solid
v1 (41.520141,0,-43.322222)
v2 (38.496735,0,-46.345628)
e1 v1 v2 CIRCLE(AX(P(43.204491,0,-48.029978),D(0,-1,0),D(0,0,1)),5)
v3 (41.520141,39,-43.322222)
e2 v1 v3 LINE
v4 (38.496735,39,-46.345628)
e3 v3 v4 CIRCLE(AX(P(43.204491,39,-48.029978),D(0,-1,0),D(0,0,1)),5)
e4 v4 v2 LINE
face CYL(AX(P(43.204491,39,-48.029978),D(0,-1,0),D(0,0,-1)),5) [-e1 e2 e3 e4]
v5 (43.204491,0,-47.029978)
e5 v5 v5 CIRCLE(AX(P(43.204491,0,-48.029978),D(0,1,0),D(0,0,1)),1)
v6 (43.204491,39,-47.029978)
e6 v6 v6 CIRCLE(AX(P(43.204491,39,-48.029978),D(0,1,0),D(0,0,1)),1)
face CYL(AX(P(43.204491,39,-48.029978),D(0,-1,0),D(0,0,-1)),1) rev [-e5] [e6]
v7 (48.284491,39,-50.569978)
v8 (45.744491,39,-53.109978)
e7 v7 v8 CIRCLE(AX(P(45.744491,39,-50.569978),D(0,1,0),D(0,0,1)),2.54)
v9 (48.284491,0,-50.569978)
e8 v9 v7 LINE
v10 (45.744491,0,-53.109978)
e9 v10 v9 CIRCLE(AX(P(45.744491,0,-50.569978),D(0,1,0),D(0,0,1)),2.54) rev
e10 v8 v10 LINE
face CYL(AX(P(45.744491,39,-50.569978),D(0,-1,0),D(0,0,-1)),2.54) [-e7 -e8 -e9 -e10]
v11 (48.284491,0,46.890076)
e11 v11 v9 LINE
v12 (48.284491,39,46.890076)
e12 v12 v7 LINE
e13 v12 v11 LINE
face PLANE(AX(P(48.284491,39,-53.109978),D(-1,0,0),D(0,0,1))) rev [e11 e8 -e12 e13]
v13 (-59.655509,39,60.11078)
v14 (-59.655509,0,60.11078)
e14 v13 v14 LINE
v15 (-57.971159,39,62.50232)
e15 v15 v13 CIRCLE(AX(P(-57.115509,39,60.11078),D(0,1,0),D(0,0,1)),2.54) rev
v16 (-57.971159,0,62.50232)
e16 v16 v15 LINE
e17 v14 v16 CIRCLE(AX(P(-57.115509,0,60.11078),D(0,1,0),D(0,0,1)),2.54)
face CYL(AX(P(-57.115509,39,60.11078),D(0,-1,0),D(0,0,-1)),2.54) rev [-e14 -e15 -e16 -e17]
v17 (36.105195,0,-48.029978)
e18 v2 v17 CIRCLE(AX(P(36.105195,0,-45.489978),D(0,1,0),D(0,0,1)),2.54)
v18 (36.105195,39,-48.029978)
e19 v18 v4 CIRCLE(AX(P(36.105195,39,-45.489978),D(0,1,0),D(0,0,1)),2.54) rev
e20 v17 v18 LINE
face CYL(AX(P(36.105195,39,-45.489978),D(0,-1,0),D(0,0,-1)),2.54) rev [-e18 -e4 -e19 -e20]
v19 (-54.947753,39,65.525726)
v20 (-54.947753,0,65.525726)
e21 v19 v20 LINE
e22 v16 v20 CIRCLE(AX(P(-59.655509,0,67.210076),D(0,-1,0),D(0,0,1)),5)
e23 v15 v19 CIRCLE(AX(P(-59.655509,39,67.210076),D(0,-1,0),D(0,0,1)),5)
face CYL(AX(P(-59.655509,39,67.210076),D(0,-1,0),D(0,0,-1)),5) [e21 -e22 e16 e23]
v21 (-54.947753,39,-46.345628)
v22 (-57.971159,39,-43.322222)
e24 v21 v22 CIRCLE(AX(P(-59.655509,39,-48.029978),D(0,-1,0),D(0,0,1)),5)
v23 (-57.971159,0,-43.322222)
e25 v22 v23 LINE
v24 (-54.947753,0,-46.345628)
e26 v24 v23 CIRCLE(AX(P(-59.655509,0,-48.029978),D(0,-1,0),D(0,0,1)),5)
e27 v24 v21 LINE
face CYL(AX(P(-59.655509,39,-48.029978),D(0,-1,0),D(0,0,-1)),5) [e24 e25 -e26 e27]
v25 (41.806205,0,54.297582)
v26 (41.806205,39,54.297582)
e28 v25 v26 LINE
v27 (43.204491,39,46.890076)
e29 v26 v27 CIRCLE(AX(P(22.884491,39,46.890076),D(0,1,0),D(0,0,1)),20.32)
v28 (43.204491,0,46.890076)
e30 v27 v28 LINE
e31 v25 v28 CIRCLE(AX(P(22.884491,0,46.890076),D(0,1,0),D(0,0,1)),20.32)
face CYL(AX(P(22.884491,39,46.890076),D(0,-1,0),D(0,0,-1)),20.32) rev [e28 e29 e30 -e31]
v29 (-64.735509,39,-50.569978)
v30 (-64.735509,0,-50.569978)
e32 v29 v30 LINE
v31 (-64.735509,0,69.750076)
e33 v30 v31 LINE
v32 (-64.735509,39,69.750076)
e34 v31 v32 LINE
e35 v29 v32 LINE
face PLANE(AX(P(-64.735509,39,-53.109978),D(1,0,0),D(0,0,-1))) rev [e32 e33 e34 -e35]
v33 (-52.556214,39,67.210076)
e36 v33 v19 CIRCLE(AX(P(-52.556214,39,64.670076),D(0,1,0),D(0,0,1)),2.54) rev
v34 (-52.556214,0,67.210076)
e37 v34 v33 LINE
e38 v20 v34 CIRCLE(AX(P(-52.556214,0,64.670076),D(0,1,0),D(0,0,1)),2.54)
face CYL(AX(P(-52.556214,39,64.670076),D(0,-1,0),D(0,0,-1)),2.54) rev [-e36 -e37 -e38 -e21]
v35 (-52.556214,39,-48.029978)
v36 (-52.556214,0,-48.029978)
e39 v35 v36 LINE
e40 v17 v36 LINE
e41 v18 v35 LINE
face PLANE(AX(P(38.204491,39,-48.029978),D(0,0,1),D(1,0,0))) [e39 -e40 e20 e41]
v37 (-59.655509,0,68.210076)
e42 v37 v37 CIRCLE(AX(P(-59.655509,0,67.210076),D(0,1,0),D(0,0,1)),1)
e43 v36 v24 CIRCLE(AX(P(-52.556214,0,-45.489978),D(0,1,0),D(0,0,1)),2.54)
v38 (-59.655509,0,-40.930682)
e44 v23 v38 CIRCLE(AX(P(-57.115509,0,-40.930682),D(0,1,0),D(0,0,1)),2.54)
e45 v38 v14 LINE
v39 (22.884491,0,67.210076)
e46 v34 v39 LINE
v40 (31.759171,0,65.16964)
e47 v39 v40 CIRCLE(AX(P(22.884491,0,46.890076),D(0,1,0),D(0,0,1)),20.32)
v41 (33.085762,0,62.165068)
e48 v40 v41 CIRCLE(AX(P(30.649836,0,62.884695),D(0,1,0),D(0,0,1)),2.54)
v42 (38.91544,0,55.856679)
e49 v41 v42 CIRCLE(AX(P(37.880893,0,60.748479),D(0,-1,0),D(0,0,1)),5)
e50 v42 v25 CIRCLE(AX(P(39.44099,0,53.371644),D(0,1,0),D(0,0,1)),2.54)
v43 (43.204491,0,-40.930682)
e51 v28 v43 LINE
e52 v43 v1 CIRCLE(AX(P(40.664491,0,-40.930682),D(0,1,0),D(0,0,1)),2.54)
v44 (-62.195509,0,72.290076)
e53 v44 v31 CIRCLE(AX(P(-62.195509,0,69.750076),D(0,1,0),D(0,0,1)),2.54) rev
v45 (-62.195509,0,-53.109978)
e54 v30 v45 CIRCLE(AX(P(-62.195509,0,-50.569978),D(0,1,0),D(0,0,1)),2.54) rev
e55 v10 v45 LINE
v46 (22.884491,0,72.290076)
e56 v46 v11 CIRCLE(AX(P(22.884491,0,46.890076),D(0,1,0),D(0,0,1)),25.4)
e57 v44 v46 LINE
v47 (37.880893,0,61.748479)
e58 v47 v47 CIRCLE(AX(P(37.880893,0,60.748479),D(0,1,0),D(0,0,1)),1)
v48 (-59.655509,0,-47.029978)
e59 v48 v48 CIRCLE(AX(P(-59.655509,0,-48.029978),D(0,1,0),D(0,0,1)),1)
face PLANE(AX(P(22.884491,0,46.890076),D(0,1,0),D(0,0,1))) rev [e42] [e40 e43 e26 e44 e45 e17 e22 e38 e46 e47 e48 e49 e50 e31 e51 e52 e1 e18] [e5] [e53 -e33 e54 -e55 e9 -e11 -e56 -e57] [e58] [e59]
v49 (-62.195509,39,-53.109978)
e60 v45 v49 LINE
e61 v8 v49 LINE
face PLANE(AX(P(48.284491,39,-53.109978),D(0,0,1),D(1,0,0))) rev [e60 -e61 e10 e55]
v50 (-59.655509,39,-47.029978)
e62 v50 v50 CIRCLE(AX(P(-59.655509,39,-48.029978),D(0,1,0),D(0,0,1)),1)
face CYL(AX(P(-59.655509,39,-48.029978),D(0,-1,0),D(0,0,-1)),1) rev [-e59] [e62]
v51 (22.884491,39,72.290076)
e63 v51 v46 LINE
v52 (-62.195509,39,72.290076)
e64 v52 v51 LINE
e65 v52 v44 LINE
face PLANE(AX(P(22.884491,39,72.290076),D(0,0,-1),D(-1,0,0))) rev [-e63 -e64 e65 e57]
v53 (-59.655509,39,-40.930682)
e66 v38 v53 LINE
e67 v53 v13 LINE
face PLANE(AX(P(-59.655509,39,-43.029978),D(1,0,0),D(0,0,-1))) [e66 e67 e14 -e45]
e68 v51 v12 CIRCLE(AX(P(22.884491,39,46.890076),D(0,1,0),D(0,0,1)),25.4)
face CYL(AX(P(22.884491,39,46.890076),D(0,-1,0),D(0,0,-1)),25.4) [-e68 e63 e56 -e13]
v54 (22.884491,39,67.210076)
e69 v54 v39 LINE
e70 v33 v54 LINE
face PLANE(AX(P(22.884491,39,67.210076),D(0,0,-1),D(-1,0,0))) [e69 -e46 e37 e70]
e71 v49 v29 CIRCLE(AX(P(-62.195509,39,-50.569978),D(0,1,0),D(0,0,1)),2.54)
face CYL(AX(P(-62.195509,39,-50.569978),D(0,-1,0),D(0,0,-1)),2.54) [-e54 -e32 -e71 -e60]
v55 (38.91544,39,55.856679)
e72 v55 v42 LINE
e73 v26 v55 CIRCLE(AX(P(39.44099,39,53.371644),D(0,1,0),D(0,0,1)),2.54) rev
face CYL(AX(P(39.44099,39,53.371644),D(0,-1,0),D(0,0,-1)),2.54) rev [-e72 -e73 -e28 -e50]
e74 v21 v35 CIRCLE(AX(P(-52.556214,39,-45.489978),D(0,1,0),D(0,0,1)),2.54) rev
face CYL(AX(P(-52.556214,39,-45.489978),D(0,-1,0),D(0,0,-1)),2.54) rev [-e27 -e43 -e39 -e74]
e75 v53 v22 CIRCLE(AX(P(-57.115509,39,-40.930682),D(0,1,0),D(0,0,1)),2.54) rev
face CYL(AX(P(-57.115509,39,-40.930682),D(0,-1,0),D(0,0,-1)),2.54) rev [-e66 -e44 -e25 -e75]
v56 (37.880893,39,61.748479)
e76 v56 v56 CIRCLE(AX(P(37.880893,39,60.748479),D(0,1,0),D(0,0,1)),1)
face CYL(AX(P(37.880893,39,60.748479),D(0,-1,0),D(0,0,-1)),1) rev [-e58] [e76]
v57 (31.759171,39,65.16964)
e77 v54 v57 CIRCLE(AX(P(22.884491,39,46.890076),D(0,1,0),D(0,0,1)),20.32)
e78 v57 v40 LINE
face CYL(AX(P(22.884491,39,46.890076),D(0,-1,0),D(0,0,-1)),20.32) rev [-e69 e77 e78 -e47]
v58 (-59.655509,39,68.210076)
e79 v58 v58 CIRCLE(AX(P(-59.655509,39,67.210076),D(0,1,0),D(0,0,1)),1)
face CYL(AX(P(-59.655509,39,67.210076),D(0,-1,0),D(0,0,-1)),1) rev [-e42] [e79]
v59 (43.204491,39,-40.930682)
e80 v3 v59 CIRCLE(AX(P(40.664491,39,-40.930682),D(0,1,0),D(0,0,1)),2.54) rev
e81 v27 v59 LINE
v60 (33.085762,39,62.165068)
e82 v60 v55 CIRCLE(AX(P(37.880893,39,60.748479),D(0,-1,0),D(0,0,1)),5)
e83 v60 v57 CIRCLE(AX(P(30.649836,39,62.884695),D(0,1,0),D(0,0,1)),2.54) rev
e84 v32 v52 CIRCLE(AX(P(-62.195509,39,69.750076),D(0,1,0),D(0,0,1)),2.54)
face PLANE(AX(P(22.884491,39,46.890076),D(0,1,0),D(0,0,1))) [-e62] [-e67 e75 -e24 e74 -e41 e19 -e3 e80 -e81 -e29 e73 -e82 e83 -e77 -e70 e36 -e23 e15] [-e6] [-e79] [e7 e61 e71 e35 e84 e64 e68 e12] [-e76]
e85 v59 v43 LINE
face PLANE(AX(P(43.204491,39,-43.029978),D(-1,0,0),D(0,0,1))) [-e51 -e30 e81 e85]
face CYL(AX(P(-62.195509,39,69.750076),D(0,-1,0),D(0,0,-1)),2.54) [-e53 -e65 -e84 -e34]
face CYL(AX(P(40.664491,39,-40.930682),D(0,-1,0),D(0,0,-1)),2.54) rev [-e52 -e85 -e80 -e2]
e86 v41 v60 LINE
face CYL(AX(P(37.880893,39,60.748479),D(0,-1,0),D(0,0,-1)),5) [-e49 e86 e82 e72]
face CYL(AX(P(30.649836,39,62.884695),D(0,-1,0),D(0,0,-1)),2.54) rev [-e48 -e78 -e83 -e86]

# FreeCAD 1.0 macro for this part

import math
import FreeCAD as App
import Part
import Sketcher
Q = App.Units.Quantity


def edges_at(feature, points):
    """Names of the edges that pass closest to the given points."""
    edges = feature.Shape.Edges
    near = lambda p: min(range(len(edges)), key=lambda i: edges[i].distToShape(Part.Vertex(*p))[0])
    return sorted({f"Edge{near(p) + 1}" for p in points})

doc = App.newDocument("Part")
params = doc.addObject("Spreadsheet::Sheet", "Params")
for row, (alias, value) in enumerate([
    ("sketch1_diameter", "2 mm"),
    ("sketch1_radius", "5 mm"),
    ("sketch1_radius2", "25.4 mm"),
    ("sketch1_radius3", "20.32 mm"),
    ("sketch1_width", "113.02 mm"),
    ("pad1_length", "39 mm"),
    ("fillet_radius", "2.54 mm"),
], start=1):
    params.set(f"A{row}", alias)
    params.set(f"B{row}", "=" + value)
    params.setAlias(f"B{row}", alias)

body = doc.addObject("PartDesign::Body", "Body")

# Sketch on XZ plane
sketch1 = doc.addObject("Sketcher::SketchObject", "Sketch")
body.addObject(sketch1)
sketch1.AttachmentSupport = (doc.XZ_Plane, [""])
sketch1.MapMode = "FlatFace"
sketch1.addGeometry([
    Part.LineSegment(App.Vector(48.3, -53.1, 0), App.Vector(-64.7, -53.1, 0)),  # 0
    Part.LineSegment(App.Vector(-64.7, -53.1, 0), App.Vector(-64.7, 72.3, 0)),  # 1
    Part.LineSegment(App.Vector(-64.7, 72.3, 0), App.Vector(22.9, 72.3, 0)),  # 2
    Part.ArcOfCircle(Part.Circle(App.Vector(22.9, 46.9, 0), App.Vector(0, 0, 1), 25.4), math.radians(0), math.radians(90)),  # 3
    Part.LineSegment(App.Vector(48.3, 46.9, 0), App.Vector(48.3, -53.1, 0)),  # 4
    Part.Circle(App.Vector(-59.7, 67.2, 0), App.Vector(0, 0, 1), 1),  # 5
    Part.Circle(App.Vector(37.9, 60.7, 0), App.Vector(0, 0, 1), 1),  # 6
    Part.Circle(App.Vector(-59.7, -48, 0), App.Vector(0, 0, 1), 1),  # 7
    Part.LineSegment(App.Vector(-54.7, -48, 0), App.Vector(38.2, -48, 0)),  # 8
    Part.ArcOfCircle(Part.Circle(App.Vector(43.2, -48, 0), App.Vector(0, 0, 1), 5), math.radians(90), math.radians(180)),  # 9
    Part.LineSegment(App.Vector(43.2, -43, 0), App.Vector(43.2, 46.9, 0)),  # 10
    Part.ArcOfCircle(Part.Circle(App.Vector(22.9, 46.9, 0), App.Vector(0, 0, 1), 20.3), math.radians(0), math.radians(29)),  # 11
    Part.ArcOfCircle(Part.Circle(App.Vector(37.9, 60.7, 0), App.Vector(0, 0, 1), 5), math.radians(141), math.radians(305)),  # 12
    Part.ArcOfCircle(Part.Circle(App.Vector(22.9, 46.9, 0), App.Vector(0, 0, 1), 20.3), math.radians(57), math.radians(90)),  # 13
    Part.LineSegment(App.Vector(22.9, 67.2, 0), App.Vector(-54.7, 67.2, 0)),  # 14
    Part.ArcOfCircle(Part.Circle(App.Vector(-59.7, 67.2, 0), App.Vector(0, 0, 1), 5), math.radians(-90), math.radians(0)),  # 15
    Part.LineSegment(App.Vector(-59.7, 62.2, 0), App.Vector(-59.7, -43, 0)),  # 16
    Part.ArcOfCircle(Part.Circle(App.Vector(-59.7, -48, 0), App.Vector(0, 0, 1), 5), math.radians(0), math.radians(90)),  # 17
    Part.Circle(App.Vector(43.2, -48, 0), App.Vector(0, 0, 1), 1),  # 18
], False)
sketch1.addConstraint([
    Sketcher.Constraint("Coincident", 0, 2, 1, 1),
    Sketcher.Constraint("Coincident", 1, 2, 2, 1),
    Sketcher.Constraint("Tangent", 2, 2, 3, 2),
    Sketcher.Constraint("Tangent", 3, 1, 4, 1),
    Sketcher.Constraint("Coincident", 4, 2, 0, 1),
    Sketcher.Constraint("Coincident", 8, 2, 9, 2),
    Sketcher.Constraint("Coincident", 9, 1, 10, 1),
    Sketcher.Constraint("Tangent", 10, 2, 11, 1),
    Sketcher.Constraint("Coincident", 11, 2, 12, 2),
    Sketcher.Constraint("Coincident", 12, 1, 13, 1),
    Sketcher.Constraint("Tangent", 13, 2, 14, 1),
    Sketcher.Constraint("Coincident", 14, 2, 15, 2),
    Sketcher.Constraint("Coincident", 15, 1, 16, 1),
    Sketcher.Constraint("Coincident", 16, 2, 17, 2),
    Sketcher.Constraint("Coincident", 17, 1, 8, 1),
    Sketcher.Constraint("Horizontal", 0),
    Sketcher.Constraint("Vertical", 1),
    Sketcher.Constraint("Horizontal", 2),
    Sketcher.Constraint("Vertical", 4),
    Sketcher.Constraint("Horizontal", 8),
    Sketcher.Constraint("Vertical", 10),
    Sketcher.Constraint("Horizontal", 14),
    Sketcher.Constraint("Vertical", 16),
    Sketcher.Constraint("Coincident", 11, 3, 3, 3),
    Sketcher.Constraint("Coincident", 12, 3, 6, 3),
    Sketcher.Constraint("Coincident", 13, 3, 3, 3),
    Sketcher.Constraint("Coincident", 15, 3, 5, 3),
    Sketcher.Constraint("Coincident", 17, 3, 7, 3),
    Sketcher.Constraint("Coincident", 18, 3, 9, 3),
    Sketcher.Constraint("Equal", 5, 6),
    Sketcher.Constraint("Equal", 6, 7),
    Sketcher.Constraint("Equal", 9, 12),
    Sketcher.Constraint("Equal", 11, 13),
    Sketcher.Constraint("Equal", 12, 15),
    Sketcher.Constraint("Equal", 15, 17),
    Sketcher.Constraint("Equal", 7, 18),
    Sketcher.Constraint("Horizontal", 7, 3, 9, 3),
    Sketcher.Constraint("Horizontal", 18, 3, 8, 2),
    Sketcher.Constraint("Horizontal", 15, 3, 13, 2),
    Sketcher.Constraint("Vertical", 5, 3, 7, 3),
    Sketcher.Constraint("Vertical", 18, 3, 9, 1),
    Sketcher.Constraint("Vertical", 17, 3, 15, 1),
    Sketcher.Constraint("Diameter", 5, Q("2 mm")),
    Sketcher.Constraint("Radius", 9, Q("5 mm")),
    Sketcher.Constraint("Radius", 3, Q("25.4 mm")),
    Sketcher.Constraint("Radius", 11, Q("20.32 mm")),
    Sketcher.Constraint("DistanceX", 0, 2, 0, 1, Q("113.02 mm")),
    Sketcher.Constraint("DistanceX", 8, 1, 8, 2, Q("92.86 mm")),
    Sketcher.Constraint("DistanceY", 0, 2, 7, 3, Q("5.08 mm")),
    Sketcher.Constraint("DistanceX", 3, 3, 6, 3, Q("14.996402 mm")),
    Sketcher.Constraint("DistanceY", 1, 1, 1, 2, Q("125.400054 mm")),
    Sketcher.Constraint("DistanceX", -1, 1, 3, 3, Q("22.884491 mm")),
    Sketcher.Constraint("DistanceY", -1, 1, 6, 3, Q("60.748479 mm")),
    Sketcher.Constraint("DistanceY", -1, 1, 12, 1, Q("63.900561 mm")),
])
sketch1.setExpression("Constraints[42]", "Params.sketch1_diameter")
sketch1.setExpression("Constraints[43]", "Params.sketch1_radius")
sketch1.setExpression("Constraints[44]", "Params.sketch1_radius2")
sketch1.setExpression("Constraints[45]", "Params.sketch1_radius3")
sketch1.setExpression("Constraints[46]", "Params.sketch1_width")
pad1 = doc.addObject("PartDesign::Pad", "Pad")
body.addObject(pad1)
pad1.Profile = sketch1
pad1.setExpression("Length", "Params.pad1_length")
pad1.Reversed = True
doc.recompute()

fillet = doc.addObject("PartDesign::Fillet", "Fillet")
body.addObject(fillet)
fillet.Base = (pad1, edges_at(pad1, [
    (34, 19.5, 63.901),
    (40.718, 19.5, 56.631),
    (43.204, 19.5, -43.03),
    (38.204, 19.5, -48.03),
    (-54.656, 19.5, -48.03),
    (-59.656, 19.5, -43.03),
    (-59.656, 19.5, 62.21),
    (-54.656, 19.5, 67.21),
    (-64.736, 19.5, 72.29),
    (-64.736, 19.5, -53.11),
    (48.284, 19.5, -53.11),
]))
fillet.setExpression("Radius", "Params.fillet_radius")

doc.recompute()
